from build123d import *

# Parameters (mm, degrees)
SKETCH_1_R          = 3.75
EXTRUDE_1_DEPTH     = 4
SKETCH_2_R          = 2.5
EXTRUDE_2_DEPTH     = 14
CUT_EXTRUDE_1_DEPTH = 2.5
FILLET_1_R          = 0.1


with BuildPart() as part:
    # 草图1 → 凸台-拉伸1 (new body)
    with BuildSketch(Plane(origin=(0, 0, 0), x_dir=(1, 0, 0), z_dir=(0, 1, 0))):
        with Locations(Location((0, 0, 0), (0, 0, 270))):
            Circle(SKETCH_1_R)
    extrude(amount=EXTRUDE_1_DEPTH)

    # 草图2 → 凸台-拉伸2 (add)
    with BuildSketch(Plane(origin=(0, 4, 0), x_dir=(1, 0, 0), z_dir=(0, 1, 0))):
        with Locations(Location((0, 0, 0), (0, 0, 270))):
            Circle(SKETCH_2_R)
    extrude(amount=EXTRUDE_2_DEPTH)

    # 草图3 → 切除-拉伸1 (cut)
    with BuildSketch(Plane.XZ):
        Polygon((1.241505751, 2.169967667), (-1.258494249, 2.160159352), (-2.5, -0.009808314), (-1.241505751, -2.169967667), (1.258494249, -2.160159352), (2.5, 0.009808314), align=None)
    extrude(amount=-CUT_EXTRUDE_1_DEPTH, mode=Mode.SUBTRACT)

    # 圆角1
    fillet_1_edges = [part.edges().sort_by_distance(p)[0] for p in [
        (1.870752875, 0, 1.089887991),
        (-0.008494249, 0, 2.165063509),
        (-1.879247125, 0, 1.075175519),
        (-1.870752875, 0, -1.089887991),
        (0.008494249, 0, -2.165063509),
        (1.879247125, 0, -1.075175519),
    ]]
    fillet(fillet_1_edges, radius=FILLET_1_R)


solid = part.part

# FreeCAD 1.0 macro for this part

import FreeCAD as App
import Part
import Sketcher

V = App.Vector
Q = App.Units.Quantity


def edges_at(feature, points):
    """Names of the edges that pass closest to the given points."""
    edges = feature.Shape.Edges
    near = lambda p: min(range(len(edges)), key=lambda i: edges[i].distToShape(Part.Vertex(*p))[0])
    return sorted({f"Edge{near(p) + 1}" for p in points})


def add_polygon(sketch, points):
    """Adds a closed chain of lines whose ends are joined by coincident constraints."""
    first, n = sketch.GeometryCount, len(points)
    for a, b in zip(points, points[1:] + points[:1]):
        sketch.addGeometry(Part.LineSegment(App.Vector(*a, 0), App.Vector(*b, 0)), False)
    for i in range(n):
        sketch.addConstraint(Sketcher.Constraint("Coincident", first + i, 2, first + (i + 1) % n, 1))

doc = App.newDocument("Part")
body = doc.addObject("PartDesign::Body", "Body")

sketch1 = body.newObject("Sketcher::SketchObject", "Sketch")
sketch1.AttachmentSupport = (doc.getObject("XZ_Plane"), [""])
sketch1.MapMode = "FlatFace"
sketch1.addGeometry(Part.Circle(V(0, 0, 0), V(0, 0, 1), 3.8), False)
sketch1.addConstraint(Sketcher.Constraint("Coincident", 0, 3, -1, 1))
sketch1.addConstraint(Sketcher.Constraint("Diameter", 0, Q("7.5 mm")))
pad1 = body.newObject("PartDesign::Pad", "Pad")
pad1.Profile = sketch1
pad1.Length = 4
pad1.Reversed = True

sketch2 = body.newObject("Sketcher::SketchObject", "Sketch001")
sketch2.AttachmentSupport = (doc.getObject("XZ_Plane"), [""])
sketch2.MapMode = "FlatFace"
sketch2.AttachmentOffset = App.Placement(V(0, 0, -4), App.Rotation())
sketch2.addGeometry(Part.Circle(V(0, 0, 0), V(0, 0, 1), 2.5), False)
sketch2.addConstraint(Sketcher.Constraint("Coincident", 0, 3, -1, 1))
sketch2.addConstraint(Sketcher.Constraint("Diameter", 0, Q("5 mm")))
pad2 = body.newObject("PartDesign::Pad", "Pad001")
pad2.Profile = sketch2
pad2.Length = 14
pad2.Reversed = True

sketch3 = body.newObject("Sketcher::SketchObject", "Sketch002")
sketch3.AttachmentSupport = (doc.getObject("XZ_Plane"), [""])
sketch3.MapMode = "FlatFace"
add_polygon(sketch3, [(1.2, 2.2), (-1.3, 2.2), (-2.5, 0), (-1.2, -2.2), (1.3, -2.2), (2.5, 0)])
sketch3.addConstraint(Sketcher.Constraint("Symmetric", 0, 2, 3, 2, -1, 1))
sketch3.addConstraint(Sketcher.Constraint("Symmetric", 1, 2, 4, 2, -1, 1))
sketch3.addConstraint(Sketcher.Constraint("Symmetric", 2, 2, 5, 2, -1, 1))
sketch3.addConstraint(Sketcher.Constraint("Equal", 0, 1))
sketch3.addConstraint(Sketcher.Constraint("Equal", 1, 2))
sketch3.addConstraint(Sketcher.Constraint("DistanceX", 1, 2, 4, 2, Q("5 mm")))
sketch3.addConstraint(Sketcher.Constraint("DistanceX", 2, 2, 3, 2, Q("2.5 mm")))
sketch3.addConstraint(Sketcher.Constraint("DistanceY", -1, 1, 0, 2, Q("2.160159 mm")))
sketch3.addConstraint(Sketcher.Constraint("DistanceY", 1, 2, -1, 1, Q("0.009808 mm")))
pocket1 = body.newObject("PartDesign::Pocket", "Pocket")
pocket1.Profile = sketch3
pocket1.Length = 2.5
doc.recompute()

fillet = body.newObject("PartDesign::Fillet", "Fillet")
fillet.Base = (pocket1, edges_at(pocket1, [
    (1.871, 0, 1.09),
    (-0.008, 0, 2.165),
    (-1.879, 0, 1.075),
    (-1.871, 0, -1.09),
    (0.008, 0, -2.165),
    (1.879, 0, -1.075),
]))
fillet.Radius = 0.1

doc.recompute()
